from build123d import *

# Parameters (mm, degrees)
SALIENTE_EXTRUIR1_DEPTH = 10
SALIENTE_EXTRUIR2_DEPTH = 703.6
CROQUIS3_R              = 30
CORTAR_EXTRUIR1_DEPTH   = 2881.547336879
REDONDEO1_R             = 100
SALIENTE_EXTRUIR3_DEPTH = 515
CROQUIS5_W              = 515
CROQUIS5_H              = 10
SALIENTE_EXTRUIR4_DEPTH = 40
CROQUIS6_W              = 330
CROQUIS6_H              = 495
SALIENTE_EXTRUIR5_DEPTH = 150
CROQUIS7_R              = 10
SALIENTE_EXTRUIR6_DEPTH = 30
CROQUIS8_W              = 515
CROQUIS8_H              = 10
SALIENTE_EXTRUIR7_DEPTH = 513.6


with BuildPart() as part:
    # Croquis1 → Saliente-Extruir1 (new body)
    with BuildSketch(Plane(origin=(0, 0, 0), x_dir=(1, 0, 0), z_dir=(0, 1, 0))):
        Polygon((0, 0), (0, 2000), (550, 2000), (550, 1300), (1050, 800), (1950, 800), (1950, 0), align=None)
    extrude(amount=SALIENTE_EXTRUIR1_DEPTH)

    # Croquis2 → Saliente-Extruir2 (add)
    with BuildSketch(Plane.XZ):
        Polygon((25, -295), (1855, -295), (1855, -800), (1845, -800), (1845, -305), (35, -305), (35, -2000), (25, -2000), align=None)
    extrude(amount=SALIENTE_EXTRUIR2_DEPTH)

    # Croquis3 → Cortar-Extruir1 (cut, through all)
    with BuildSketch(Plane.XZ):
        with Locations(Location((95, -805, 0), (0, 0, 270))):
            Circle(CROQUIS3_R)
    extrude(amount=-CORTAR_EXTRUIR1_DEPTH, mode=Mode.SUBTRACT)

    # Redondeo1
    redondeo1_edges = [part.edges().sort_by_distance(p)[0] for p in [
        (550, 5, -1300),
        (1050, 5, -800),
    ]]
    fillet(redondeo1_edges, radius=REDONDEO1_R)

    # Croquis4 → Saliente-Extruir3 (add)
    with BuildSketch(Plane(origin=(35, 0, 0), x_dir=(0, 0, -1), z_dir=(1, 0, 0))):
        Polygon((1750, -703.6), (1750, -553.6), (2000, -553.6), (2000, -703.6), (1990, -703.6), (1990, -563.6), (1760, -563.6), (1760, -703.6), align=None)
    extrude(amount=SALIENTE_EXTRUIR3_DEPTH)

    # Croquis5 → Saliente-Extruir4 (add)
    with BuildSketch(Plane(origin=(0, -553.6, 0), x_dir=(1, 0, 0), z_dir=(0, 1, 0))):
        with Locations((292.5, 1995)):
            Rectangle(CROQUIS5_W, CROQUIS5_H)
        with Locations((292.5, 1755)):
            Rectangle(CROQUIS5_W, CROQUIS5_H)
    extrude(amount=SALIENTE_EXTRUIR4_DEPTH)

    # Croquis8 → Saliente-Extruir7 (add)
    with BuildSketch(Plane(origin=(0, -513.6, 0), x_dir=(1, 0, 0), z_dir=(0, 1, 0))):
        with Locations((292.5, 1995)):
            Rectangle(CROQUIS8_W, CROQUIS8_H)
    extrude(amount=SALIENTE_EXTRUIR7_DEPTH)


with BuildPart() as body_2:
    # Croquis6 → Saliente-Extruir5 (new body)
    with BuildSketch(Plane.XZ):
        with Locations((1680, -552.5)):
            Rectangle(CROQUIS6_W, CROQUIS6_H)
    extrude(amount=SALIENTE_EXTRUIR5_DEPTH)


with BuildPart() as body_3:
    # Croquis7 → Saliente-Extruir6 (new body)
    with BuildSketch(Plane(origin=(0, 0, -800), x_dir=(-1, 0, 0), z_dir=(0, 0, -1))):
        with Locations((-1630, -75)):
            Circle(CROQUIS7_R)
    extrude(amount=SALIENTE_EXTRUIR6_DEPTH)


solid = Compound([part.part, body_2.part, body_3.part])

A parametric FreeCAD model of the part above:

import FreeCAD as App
import Part
import Sketcher
from FreeCAD import Vector
Q = App.Units.Quantity


def edges_at(feature, points):
    """Names of the edges that pass closest to the given points."""
    edges = feature.Shape.Edges
    near = lambda p: min(range(len(edges)), key=lambda i: edges[i].distToShape(Part.Vertex(*p))[0])
    return sorted({f"Edge{near(p) + 1}" for p in points})

doc = App.newDocument("Part")
body = doc.addObject("PartDesign::Body", "Body")

# Sketch on XZ plane
sketch1 = body.newObject("Sketcher::SketchObject", "Sketch")
sketch1.AttachmentSupport = (doc.getObject("XZ_Plane"), [""])
sketch1.MapMode = "FlatFace"
sketch1.addGeometry([
    Part.LineSegment(Vector(0, -2000, 0), Vector(0, 0, 0)),  # 0
    Part.LineSegment(Vector(0, 0, 0), Vector(1950, 0, 0)),  # 1
    Part.LineSegment(Vector(1950, 0, 0), Vector(1950, -800, 0)),  # 2
    Part.LineSegment(Vector(1950, -800, 0), Vector(1050, -800, 0)),  # 3
    Part.LineSegment(Vector(1050, -800, 0), Vector(550, -1300, 0)),  # 4
    Part.LineSegment(Vector(550, -1300, 0), Vector(550, -2000, 0)),  # 5
    Part.LineSegment(Vector(550, -2000, 0), Vector(0, -2000, 0)),  # 6
], False)
sketch1.addConstraint([
    Sketcher.Constraint("Coincident", 0, 2, 1, 1),
    Sketcher.Constraint("Coincident", 1, 2, 2, 1),
    Sketcher.Constraint("Coincident", 2, 2, 3, 1),
    Sketcher.Constraint("Coincident", 3, 2, 4, 1),
    Sketcher.Constraint("Coincident", 4, 2, 5, 1),
    Sketcher.Constraint("Coincident", 5, 2, 6, 1),
    Sketcher.Constraint("Coincident", 6, 2, 0, 1),
    Sketcher.Constraint("Vertical", 0),
    Sketcher.Constraint("Horizontal", 1),
    Sketcher.Constraint("Vertical", 2),
    Sketcher.Constraint("Horizontal", 3),
    Sketcher.Constraint("Vertical", 5),
    Sketcher.Constraint("Horizontal", 6),
    Sketcher.Constraint("Coincident", 0, 2, -1, 1),
    Sketcher.Constraint("DistanceX", 1, 1, 1, 2, Q("1950 mm")),
    Sketcher.Constraint("DistanceX", 3, 2, 3, 1, Q("900 mm")),
    Sketcher.Constraint("DistanceX", 6, 2, 6, 1, Q("550 mm")),
    Sketcher.Constraint("DistanceY", 0, 1, 0, 2, Q("2000 mm")),
    Sketcher.Constraint("DistanceY", 2, 2, 2, 1, Q("800 mm")),
    Sketcher.Constraint("DistanceY", 5, 2, 5, 1, Q("700 mm")),
])
pad1 = body.newObject("PartDesign::Pad", "Pad")
pad1.Profile = sketch1
pad1.Length = 10
pad1.Reversed = True

# Sketch on XZ plane
sketch2 = body.newObject("Sketcher::SketchObject", "Sketch001")
sketch2.AttachmentSupport = (doc.getObject("XZ_Plane"), [""])
sketch2.MapMode = "FlatFace"
sketch2.addGeometry([
    Part.LineSegment(Vector(1855, -295, 0), Vector(25, -295, 0)),  # 0
    Part.LineSegment(Vector(25, -295, 0), Vector(25, -2000, 0)),  # 1
    Part.LineSegment(Vector(25, -2000, 0), Vector(35, -2000, 0)),  # 2
    Part.LineSegment(Vector(35, -2000, 0), Vector(35, -305, 0)),  # 3
    Part.LineSegment(Vector(35, -305, 0), Vector(1845, -305, 0)),  # 4
    Part.LineSegment(Vector(1845, -305, 0), Vector(1845, -800, 0)),  # 5
    Part.LineSegment(Vector(1845, -800, 0), Vector(1855, -800, 0)),  # 6
    Part.LineSegment(Vector(1855, -800, 0), Vector(1855, -295, 0)),  # 7
], False)
sketch2.addConstraint([
    Sketcher.Constraint("Coincident", 0, 2, 1, 1),
    Sketcher.Constraint("Coincident", 1, 2, 2, 1),
    Sketcher.Constraint("Coincident", 2, 2, 3, 1),
    Sketcher.Constraint("Coincident", 3, 2, 4, 1),
    Sketcher.Constraint("Coincident", 4, 2, 5, 1),
    Sketcher.Constraint("Coincident", 5, 2, 6, 1),
    Sketcher.Constraint("Coincident", 6, 2, 7, 1),
    Sketcher.Constraint("Coincident", 7, 2, 0, 1),
    Sketcher.Constraint("Horizontal", 0),
    Sketcher.Constraint("Vertical", 1),
    Sketcher.Constraint("Horizontal", 2),
    Sketcher.Constraint("Vertical", 3),
    Sketcher.Constraint("Horizontal", 4),
    Sketcher.Constraint("Vertical", 5),
    Sketcher.Constraint("Horizontal", 6),
    Sketcher.Constraint("Vertical", 7),
    Sketcher.Constraint("Equal", 2, 6),
    Sketcher.Constraint("DistanceX", 0, 2, 0, 1, Q("1830 mm")),
    Sketcher.Constraint("DistanceX", 2, 1, 2, 2, Q("10 mm")),
    Sketcher.Constraint("DistanceY", 1, 2, 1, 1, Q("1705 mm")),
    Sketcher.Constraint("DistanceY", 3, 1, 3, 2, Q("1695 mm")),
    Sketcher.Constraint("DistanceY", 5, 2, 5, 1, Q("495 mm")),
    Sketcher.Constraint("DistanceX", -1, 1, 0, 2, Q("25 mm")),
    Sketcher.Constraint("DistanceY", 0, 2, -1, 1, Q("295 mm")),
])
pad2 = body.newObject("PartDesign::Pad", "Pad001")
pad2.Profile = sketch2
pad2.Length = 703.6

# Sketch on XZ plane
sketch3 = body.newObject("Sketcher::SketchObject", "Sketch002")
sketch3.AttachmentSupport = (doc.getObject("XZ_Plane"), [""])
sketch3.MapMode = "FlatFace"
sketch3.addGeometry(Part.Circle(Vector(95, -805, 0), Vector(0, 0, 1), 30), False)
sketch3.addConstraint([
    Sketcher.Constraint("Diameter", 0, Q("60 mm")),
    Sketcher.Constraint("DistanceX", -1, 1, 0, 3, Q("95 mm")),
    Sketcher.Constraint("DistanceY", 0, 3, -1, 1, Q("805 mm")),
])
pocket1 = body.newObject("PartDesign::Pocket", "Pocket")
pocket1.Profile = sketch3
pocket1.Type = "ThroughAll"
doc.recompute()

fillet = body.newObject("PartDesign::Fillet", "Fillet")
fillet.Base = (pocket1, edges_at(pocket1, [(550, 5, -1300), (1050, 5, -800)]))
fillet.Radius = 100

# Sketch on YZ plane
sketch4 = body.newObject("Sketcher::SketchObject", "Sketch003")
sketch4.AttachmentSupport = (doc.getObject("YZ_Plane"), [""])
sketch4.MapMode = "FlatFace"
sketch4.AttachmentOffset = App.Placement(Vector(0, 0, 35), App.Rotation())
sketch4.addGeometry([
    Part.LineSegment(Vector(-553.6, -1750, 0), Vector(-703.6, -1750, 0)),  # 0
    Part.LineSegment(Vector(-703.6, -1750, 0), Vector(-703.6, -1760, 0)),  # 1
    Part.LineSegment(Vector(-703.6, -1760, 0), Vector(-563.6, -1760, 0)),  # 2
    Part.LineSegment(Vector(-563.6, -1760, 0), Vector(-563.6, -1990, 0)),  # 3
    Part.LineSegment(Vector(-563.6, -1990, 0), Vector(-703.6, -1990, 0)),  # 4
    Part.LineSegment(Vector(-703.6, -1990, 0), Vector(-703.6, -2000, 0)),  # 5
    Part.LineSegment(Vector(-703.6, -2000, 0), Vector(-553.6, -2000, 0)),  # 6
    Part.LineSegment(Vector(-553.6, -2000, 0), Vector(-553.6, -1750, 0)),  # 7
], False)
sketch4.addConstraint([
    Sketcher.Constraint("Coincident", 0, 2, 1, 1),
    Sketcher.Constraint("Coincident", 1, 2, 2, 1),
    Sketcher.Constraint("Coincident", 2, 2, 3, 1),
    Sketcher.Constraint("Coincident", 3, 2, 4, 1),
    Sketcher.Constraint("Coincident", 4, 2, 5, 1),
    Sketcher.Constraint("Coincident", 5, 2, 6, 1),
    Sketcher.Constraint("Coincident", 6, 2, 7, 1),
    Sketcher.Constraint("Coincident", 7, 2, 0, 1),
    Sketcher.Constraint("Horizontal", 0),
    Sketcher.Constraint("Vertical", 1),
    Sketcher.Constraint("Horizontal", 2),
    Sketcher.Constraint("Vertical", 3),
    Sketcher.Constraint("Horizontal", 4),
    Sketcher.Constraint("Vertical", 5),
    Sketcher.Constraint("Horizontal", 6),
    Sketcher.Constraint("Vertical", 7),
    Sketcher.Constraint("Vertical", 1, 2, 4, 2),
    Sketcher.Constraint("Equal", 1, 5),
    Sketcher.Constraint("DistanceX", 0, 2, 0, 1, Q("150 mm")),
    Sketcher.Constraint("DistanceX", 2, 1, 2, 2, Q("140 mm")),
    Sketcher.Constraint("DistanceY", 1, 2, 1, 1, Q("10 mm")),
    Sketcher.Constraint("DistanceY", 3, 2, 3, 1, Q("230 mm")),
    Sketcher.Constraint("DistanceY", 0, 2, -1, 1, Q("1750 mm")),
    Sketcher.Constraint("DistanceX", 0, 2, -1, 1, Q("703.6 mm")),
])
pad3 = body.newObject("PartDesign::Pad", "Pad002")
pad3.Profile = sketch4
pad3.Length = 515

# Sketch on XZ plane
sketch5 = body.newObject("Sketcher::SketchObject", "Sketch004")
sketch5.AttachmentSupport = (doc.getObject("XZ_Plane"), [""])
sketch5.MapMode = "FlatFace"
sketch5.AttachmentOffset = App.Placement(Vector(0, 0, 553.6), App.Rotation())
sketch5.addGeometry([
    Part.LineSegment(Vector(35, -2000, 0), Vector(35, -1990, 0)),  # 0
    Part.LineSegment(Vector(35, -1990, 0), Vector(550, -1990, 0)),  # 1
    Part.LineSegment(Vector(550, -1990, 0), Vector(550, -2000, 0)),  # 2
    Part.LineSegment(Vector(550, -2000, 0), Vector(35, -2000, 0)),  # 3
    Part.LineSegment(Vector(35, -1760, 0), Vector(35, -1750, 0)),  # 4
    Part.LineSegment(Vector(35, -1750, 0), Vector(550, -1750, 0)),  # 5
    Part.LineSegment(Vector(550, -1750, 0), Vector(550, -1760, 0)),  # 6
    Part.LineSegment(Vector(550, -1760, 0), Vector(35, -1760, 0)),  # 7
], False)
sketch5.addConstraint([
    Sketcher.Constraint("Coincident", 0, 2, 1, 1),
    Sketcher.Constraint("Coincident", 1, 2, 2, 1),
    Sketcher.Constraint("Coincident", 2, 2, 3, 1),
    Sketcher.Constraint("Coincident", 3, 2, 0, 1),
    Sketcher.Constraint("Coincident", 4, 2, 5, 1),
    Sketcher.Constraint("Coincident", 5, 2, 6, 1),
    Sketcher.Constraint("Coincident", 6, 2, 7, 1),
    Sketcher.Constraint("Coincident", 7, 2, 4, 1),
    Sketcher.Constraint("Vertical", 0),
    Sketcher.Constraint("Horizontal", 1),
    Sketcher.Constraint("Vertical", 2),
    Sketcher.Constraint("Horizontal", 3),
    Sketcher.Constraint("Vertical", 4),
    Sketcher.Constraint("Horizontal", 5),
    Sketcher.Constraint("Vertical", 6),
    Sketcher.Constraint("Horizontal", 7),
    Sketcher.Constraint("Vertical", 3, 2, 4, 2),
    Sketcher.Constraint("Vertical", 2, 2, 5, 2),
    Sketcher.Constraint("Equal", 2, 4),
    Sketcher.Constraint("DistanceX", 1, 1, 1, 2, Q("515 mm")),
    Sketcher.Constraint("DistanceY", 0, 1, 0, 2, Q("10 mm")),
    Sketcher.Constraint("DistanceX", -1, 1, 0, 2, Q("35 mm")),
    Sketcher.Constraint("DistanceY", 0, 2, -1, 1, Q("1990 mm")),
    Sketcher.Constraint("DistanceY", 4, 2, -1, 1, Q("1750 mm")),
])
pad4 = body.newObject("PartDesign::Pad", "Pad003")
pad4.Profile = sketch5
pad4.Length = 40
pad4.Reversed = True

# Sketch on XZ plane
sketch6 = body.newObject("Sketcher::SketchObject", "Sketch005")
sketch6.AttachmentSupport = (doc.getObject("XZ_Plane"), [""])
sketch6.MapMode = "FlatFace"
sketch6.AttachmentOffset = App.Placement(Vector(0, 0, 513.6), App.Rotation())
sketch6.addGeometry([
    Part.LineSegment(Vector(35, -2000, 0), Vector(35, -1990, 0)),
    Part.LineSegment(Vector(35, -1990, 0), Vector(550, -1990, 0)),
    Part.LineSegment(Vector(550, -1990, 0), Vector(550, -2000, 0)),
    Part.LineSegment(Vector(550, -2000, 0), Vector(35, -2000, 0)),
], False)
sketch6.addConstraint([
    Sketcher.Constraint("Coincident", 0, 2, 1, 1),
    Sketcher.Constraint("Coincident", 1, 2, 2, 1),
    Sketcher.Constraint("Coincident", 2, 2, 3, 1),
    Sketcher.Constraint("Coincident", 3, 2, 0, 1),
    Sketcher.Constraint("Vertical", 0),
    Sketcher.Constraint("Horizontal", 1),
    Sketcher.Constraint("Vertical", 2),
    Sketcher.Constraint("Horizontal", 3),
    Sketcher.Constraint("DistanceX", 1, 1, 1, 2, Q("515 mm")),
    Sketcher.Constraint("DistanceY", 0, 1, 0, 2, Q("10 mm")),
    Sketcher.Constraint("DistanceX", -1, 1, 0, 2, Q("35 mm")),
    Sketcher.Constraint("DistanceY", 0, 2, -1, 1, Q("1990 mm")),
])
pad5 = body.newObject("PartDesign::Pad", "Pad004")
pad5.Profile = sketch6
pad5.Length = 513.6
pad5.Reversed = True
body2 = doc.addObject("PartDesign::Body", "Body001")

# Sketch on XZ plane
sketch7 = body2.newObject("Sketcher::SketchObject", "Sketch006")
sketch7.AttachmentSupport = (doc.getObject("XZ_Plane001"), [""])
sketch7.MapMode = "FlatFace"
sketch7.addGeometry([
    Part.LineSegment(Vector(1515, -305, 0), Vector(1515, -800, 0)),
    Part.LineSegment(Vector(1515, -800, 0), Vector(1845, -800, 0)),
    Part.LineSegment(Vector(1845, -800, 0), Vector(1845, -305, 0)),
    Part.LineSegment(Vector(1845, -305, 0), Vector(1515, -305, 0)),
], False)
sketch7.addConstraint([
    Sketcher.Constraint("Coincident", 0, 2, 1, 1),
    Sketcher.Constraint("Coincident", 1, 2, 2, 1),
    Sketcher.Constraint("Coincident", 2, 2, 3, 1),
    Sketcher.Constraint("Coincident", 3, 2, 0, 1),
    Sketcher.Constraint("Vertical", 0),
    Sketcher.Constraint("Horizontal", 1),
    Sketcher.Constraint("Vertical", 2),
    Sketcher.Constraint("Horizontal", 3),
    Sketcher.Constraint("DistanceX", 1, 1, 1, 2, Q("330 mm")),
    Sketcher.Constraint("DistanceY", 0, 2, 0, 1, Q("495 mm")),
    Sketcher.Constraint("DistanceX", -1, 1, 0, 2, Q("1515 mm")),
    Sketcher.Constraint("DistanceY", 0, 2, -1, 1, Q("800 mm")),
])
pad6 = body2.newObject("PartDesign::Pad", "Pad005")
pad6.Profile = sketch7
pad6.Length = 150
body3 = doc.addObject("PartDesign::Body", "Body002")

# Sketch on XY plane
sketch8 = body3.newObject("Sketcher::SketchObject", "Sketch007")
sketch8.AttachmentSupport = (doc.getObject("XY_Plane002"), [""])
sketch8.MapMode = "FlatFace"
sketch8.AttachmentOffset = App.Placement(Vector(0, 0, -800), App.Rotation())
sketch8.addGeometry(Part.Circle(Vector(1630, -75, 0), Vector(0, 0, 1), 10), False)
sketch8.addConstraint([
    Sketcher.Constraint("Diameter", 0, Q("20 mm")),
    Sketcher.Constraint("DistanceX", -1, 1, 0, 3, Q("1630 mm")),
    Sketcher.Constraint("DistanceY", 0, 3, -1, 1, Q("75 mm")),
])
pad7 = body3.newObject("PartDesign::Pad", "Pad006")
pad7.Profile = sketch8
pad7.Length = 30
pad7.Reversed = True

doc.recompute()
